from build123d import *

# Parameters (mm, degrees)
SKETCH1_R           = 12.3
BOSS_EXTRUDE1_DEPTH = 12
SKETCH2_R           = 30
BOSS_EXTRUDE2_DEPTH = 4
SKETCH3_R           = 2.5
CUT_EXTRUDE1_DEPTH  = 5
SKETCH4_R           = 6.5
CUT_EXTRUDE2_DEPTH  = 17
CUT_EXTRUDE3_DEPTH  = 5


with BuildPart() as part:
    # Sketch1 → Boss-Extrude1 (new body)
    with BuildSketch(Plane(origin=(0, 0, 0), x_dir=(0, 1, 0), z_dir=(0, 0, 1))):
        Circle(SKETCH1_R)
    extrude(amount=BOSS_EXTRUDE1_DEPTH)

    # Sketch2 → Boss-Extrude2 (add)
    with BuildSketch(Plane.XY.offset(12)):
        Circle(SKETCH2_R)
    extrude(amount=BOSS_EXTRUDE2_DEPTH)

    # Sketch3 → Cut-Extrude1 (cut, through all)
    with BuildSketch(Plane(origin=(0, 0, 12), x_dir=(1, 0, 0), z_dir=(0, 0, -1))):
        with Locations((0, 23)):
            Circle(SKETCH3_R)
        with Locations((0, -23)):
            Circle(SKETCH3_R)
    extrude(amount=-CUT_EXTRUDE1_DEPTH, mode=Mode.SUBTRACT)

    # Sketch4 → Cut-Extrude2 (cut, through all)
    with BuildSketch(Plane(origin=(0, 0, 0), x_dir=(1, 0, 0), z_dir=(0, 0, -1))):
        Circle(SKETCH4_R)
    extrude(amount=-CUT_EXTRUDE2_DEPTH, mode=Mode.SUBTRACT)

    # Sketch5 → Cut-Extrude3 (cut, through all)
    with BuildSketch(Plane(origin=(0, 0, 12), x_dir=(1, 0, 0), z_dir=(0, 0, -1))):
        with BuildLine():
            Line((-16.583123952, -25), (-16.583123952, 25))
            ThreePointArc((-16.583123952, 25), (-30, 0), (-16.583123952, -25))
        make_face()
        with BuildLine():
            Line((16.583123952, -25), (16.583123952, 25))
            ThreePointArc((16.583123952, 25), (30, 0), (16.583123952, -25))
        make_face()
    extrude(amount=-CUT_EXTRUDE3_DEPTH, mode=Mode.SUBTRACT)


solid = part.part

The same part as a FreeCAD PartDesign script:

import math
import FreeCAD as App
import Part
import Sketcher

V = App.Vector
Q = App.Units.Quantity

doc = App.newDocument("Part")
body = doc.addObject("PartDesign::Body", "Body")

# Sketch on XY plane
sketch1 = body.newObject("Sketcher::SketchObject", "Sketch")
sketch1.AttachmentSupport = (doc.getObject("XY_Plane"), [""])
sketch1.MapMode = "FlatFace"
sketch1.addGeometry(Part.Circle(V(0, 0, 0), V(0, 0, 1), 12), False)
sketch1.addConstraint([
    Sketcher.Constraint("Coincident", 0, 3, -1, 1),
    Sketcher.Constraint("Diameter", 0, Q("24.6 mm")),
])
pad1 = body.newObject("PartDesign::Pad", "Pad")
pad1.Profile = sketch1
pad1.Length = 12

# Sketch on XY plane
sketch2 = body.newObject("Sketcher::SketchObject", "Sketch001")
sketch2.AttachmentSupport = (doc.getObject("XY_Plane"), [""])
sketch2.MapMode = "FlatFace"
sketch2.AttachmentOffset = App.Placement(V(0, 0, 12), App.Rotation())
sketch2.addGeometry(Part.Circle(V(0, 0, 0), V(0, 0, 1), 30), False)
sketch2.addConstraint([
    Sketcher.Constraint("Coincident", 0, 3, -1, 1),
    Sketcher.Constraint("Diameter", 0, Q("60 mm")),
])
pad2 = body.newObject("PartDesign::Pad", "Pad001")
pad2.Profile = sketch2
pad2.Length = 4

# Sketch on XY plane
sketch3 = body.newObject("Sketcher::SketchObject", "Sketch002")
sketch3.AttachmentSupport = (doc.getObject("XY_Plane"), [""])
sketch3.MapMode = "FlatFace"
sketch3.AttachmentOffset = App.Placement(V(0, 0, 12), App.Rotation())
sketch3.addGeometry([
    Part.Circle(V(0, -23, 0), V(0, 0, 1), 2.5),
    Part.Circle(V(0, 23, 0), V(0, 0, 1), 2.5),
], False)
sketch3.addConstraint([
    Sketcher.Constraint("Equal", 0, 1),
    Sketcher.Constraint("Symmetric", 0, 3, 1, 3, -1, 1),
    Sketcher.Constraint("PointOnObject", 0, 3, -2),
    Sketcher.Constraint("Diameter", 0, Q("5 mm")),
    Sketcher.Constraint("DistanceY", 0, 3, -1, 1, Q("23 mm")),
])
pocket1 = body.newObject("PartDesign::Pocket", "Pocket")
pocket1.Profile = sketch3
pocket1.Type = "ThroughAll"
pocket1.Reversed = True

# Sketch on XY plane
sketch4 = body.newObject("Sketcher::SketchObject", "Sketch003")
sketch4.AttachmentSupport = (doc.getObject("XY_Plane"), [""])
sketch4.MapMode = "FlatFace"
sketch4.addGeometry(Part.Circle(V(0, 0, 0), V(0, 0, 1), 6), False)
sketch4.addConstraint([
    Sketcher.Constraint("Coincident", 0, 3, -1, 1),
    Sketcher.Constraint("Diameter", 0, Q("13 mm")),
])
pocket2 = body.newObject("PartDesign::Pocket", "Pocket001")
pocket2.Profile = sketch4
pocket2.Type = "ThroughAll"
pocket2.Reversed = True

# Sketch on XY plane
sketch5 = body.newObject("Sketcher::SketchObject", "Sketch004")
sketch5.AttachmentSupport = (doc.getObject("XY_Plane"), [""])
sketch5.MapMode = "FlatFace"
sketch5.AttachmentOffset = App.Placement(V(0, 0, 12), App.Rotation())
sketch5.addGeometry([
    Part.LineSegment(V(-17, 25, 0), V(-17, -25, 0)),
    Part.ArcOfCircle(Part.Circle(V(0, 0, 0), V(0, 0, 1), 30), math.radians(124), math.radians(236)),
    Part.LineSegment(V(17, -25, 0), V(17, 25, 0)),
    Part.ArcOfCircle(Part.Circle(V(0, 0, 0), V(0, 0, 1), 30), math.radians(-56), math.radians(56)),
], False)
sketch5.addConstraint([
    Sketcher.Constraint("Coincident", 0, 1, 1, 1),
    Sketcher.Constraint("Coincident", 1, 2, 0, 2),
    Sketcher.Constraint("Coincident", 2, 1, 3, 1),
    Sketcher.Constraint("Coincident", 3, 2, 2, 2),
    Sketcher.Constraint("Vertical", 0),
    Sketcher.Constraint("Vertical", 2),
    Sketcher.Constraint("Coincident", 1, 3, -1, 1),
    Sketcher.Constraint("Coincident", 3, 3, -1, 1),
    Sketcher.Constraint("Equal", 1, 3),
    Sketcher.Constraint("Horizontal", 1, 2, 2, 1),
    Sketcher.Constraint("Radius", 1, Q("30 mm")),
    Sketcher.Constraint("DistanceY", 0, 2, 0, 1, Q("50 mm")),
])
pocket3 = body.newObject("PartDesign::Pocket", "Pocket002")
pocket3.Profile = sketch5
pocket3.Type = "ThroughAll"
pocket3.Reversed = True

doc.recompute()
